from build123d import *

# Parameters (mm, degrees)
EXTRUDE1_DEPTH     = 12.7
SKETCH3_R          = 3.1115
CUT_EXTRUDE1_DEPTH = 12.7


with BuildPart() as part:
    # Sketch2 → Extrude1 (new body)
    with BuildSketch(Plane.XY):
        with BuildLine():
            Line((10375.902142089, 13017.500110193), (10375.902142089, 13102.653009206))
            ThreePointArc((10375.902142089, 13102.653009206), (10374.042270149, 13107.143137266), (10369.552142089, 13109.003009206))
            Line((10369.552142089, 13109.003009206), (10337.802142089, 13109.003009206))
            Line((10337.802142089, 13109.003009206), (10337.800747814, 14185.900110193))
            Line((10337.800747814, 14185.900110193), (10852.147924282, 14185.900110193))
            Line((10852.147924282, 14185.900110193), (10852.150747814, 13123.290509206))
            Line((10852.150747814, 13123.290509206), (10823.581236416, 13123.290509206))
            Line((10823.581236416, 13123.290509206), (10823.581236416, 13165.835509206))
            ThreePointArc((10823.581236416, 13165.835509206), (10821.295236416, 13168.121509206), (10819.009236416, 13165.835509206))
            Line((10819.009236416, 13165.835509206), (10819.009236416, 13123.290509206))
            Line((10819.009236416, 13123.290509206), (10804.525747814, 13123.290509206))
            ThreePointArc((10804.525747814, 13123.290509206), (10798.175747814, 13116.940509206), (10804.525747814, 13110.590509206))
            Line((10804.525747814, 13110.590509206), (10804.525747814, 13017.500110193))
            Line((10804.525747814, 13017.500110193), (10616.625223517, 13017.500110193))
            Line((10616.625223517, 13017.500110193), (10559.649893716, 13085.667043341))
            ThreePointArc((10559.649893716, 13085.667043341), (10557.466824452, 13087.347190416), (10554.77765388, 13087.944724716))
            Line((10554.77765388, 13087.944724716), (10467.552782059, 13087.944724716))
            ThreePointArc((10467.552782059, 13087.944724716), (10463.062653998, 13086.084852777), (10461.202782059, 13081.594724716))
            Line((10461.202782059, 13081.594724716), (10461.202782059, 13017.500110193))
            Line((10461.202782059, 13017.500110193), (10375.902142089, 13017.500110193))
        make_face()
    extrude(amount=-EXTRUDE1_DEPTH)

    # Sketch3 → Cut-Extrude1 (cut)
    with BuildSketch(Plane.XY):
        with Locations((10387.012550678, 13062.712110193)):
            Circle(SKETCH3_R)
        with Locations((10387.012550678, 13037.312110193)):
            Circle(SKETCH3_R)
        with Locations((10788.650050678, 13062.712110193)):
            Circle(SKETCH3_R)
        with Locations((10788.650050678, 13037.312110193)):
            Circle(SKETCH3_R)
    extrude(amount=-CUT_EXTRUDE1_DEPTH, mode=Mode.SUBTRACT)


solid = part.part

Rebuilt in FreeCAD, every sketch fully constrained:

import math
import FreeCAD as App
import Part
import Sketcher
Q = App.Units.Quantity

doc = App.newDocument("Part")
body = doc.addObject("PartDesign::Body", "Body")

# Sketch on XY plane
sketch1 = doc.addObject("Sketcher::SketchObject", "Sketch")
body.addObject(sketch1)
sketch1.AttachmentSupport = (doc.XY_Plane, [""])
sketch1.MapMode = "FlatFace"
sketch1.addGeometry(Part.LineSegment(App.Vector(10375.902142, 13102.653009, 0), App.Vector(10375.902142, 13017.50011, 0)), False)
sketch1.addGeometry(Part.LineSegment(App.Vector(10375.902142, 13017.50011, 0), App.Vector(10461.202782, 13017.50011, 0)), False)
sketch1.addGeometry(Part.LineSegment(App.Vector(10461.202782, 13017.50011, 0), App.Vector(10461.202782, 13081.594725, 0)), False)
sketch1.addGeometry(Part.ArcOfCircle(Part.Circle(App.Vector(10467.552782, 13081.594725, 0), App.Vector(0, 0, 1), 6.35), math.radians(90), math.radians(180)), False)
sketch1.addGeometry(Part.LineSegment(App.Vector(10467.552782, 13087.944725, 0), App.Vector(10554.777654, 13087.944725, 0)), False)
sketch1.addGeometry(Part.ArcOfCircle(Part.Circle(App.Vector(10554.777654, 13081.594725, 0), App.Vector(0, 0, 1), 6.35), math.radians(39.889574), math.radians(90)), False)
sketch1.addGeometry(Part.LineSegment(App.Vector(10559.649894, 13085.667043, 0), App.Vector(10616.625224, 13017.50011, 0)), False)
sketch1.addGeometry(Part.LineSegment(App.Vector(10616.625224, 13017.50011, 0), App.Vector(10804.525748, 13017.50011, 0)), False)
sketch1.addGeometry(Part.LineSegment(App.Vector(10804.525748, 13017.50011, 0), App.Vector(10804.525748, 13110.590509, 0)), False)
sketch1.addGeometry(Part.ArcOfCircle(Part.Circle(App.Vector(10804.525748, 13116.940509, 0), App.Vector(0, 0, 1), 6.35), math.radians(90), math.radians(270)), False)
sketch1.addGeometry(Part.LineSegment(App.Vector(10804.525748, 13123.290509, 0), App.Vector(10819.009236, 13123.290509, 0)), False)
sketch1.addGeometry(Part.LineSegment(App.Vector(10819.009236, 13123.290509, 0), App.Vector(10819.009236, 13165.835509, 0)), False)
sketch1.addGeometry(Part.ArcOfCircle(Part.Circle(App.Vector(10821.295236, 13165.835509, 0), App.Vector(0, 0, 1), 2.286), math.radians(0), math.radians(180)), False)
sketch1.addGeometry(Part.LineSegment(App.Vector(10823.581236, 13165.835509, 0), App.Vector(10823.581236, 13123.290509, 0)), False)
sketch1.addGeometry(Part.LineSegment(App.Vector(10823.581236, 13123.290509, 0), App.Vector(10852.150748, 13123.290509, 0)), False)
sketch1.addGeometry(Part.LineSegment(App.Vector(10852.150748, 13123.290509, 0), App.Vector(10852.147924, 14185.90011, 0)), False)
sketch1.addGeometry(Part.LineSegment(App.Vector(10852.147924, 14185.90011, 0), App.Vector(10337.800748, 14185.90011, 0)), False)
sketch1.addGeometry(Part.LineSegment(App.Vector(10337.800748, 14185.90011, 0), App.Vector(10337.802142, 13109.003009, 0)), False)
sketch1.addGeometry(Part.LineSegment(App.Vector(10337.802142, 13109.003009, 0), App.Vector(10369.552142, 13109.003009, 0)), False)
sketch1.addGeometry(Part.ArcOfCircle(Part.Circle(App.Vector(10369.552142, 13102.653009, 0), App.Vector(0, 0, 1), 6.35), math.radians(0), math.radians(90)), False)
sketch1.addConstraint(Sketcher.Constraint("Coincident", 0, 2, 1, 1))
sketch1.addConstraint(Sketcher.Constraint("Coincident", 1, 2, 2, 1))
sketch1.addConstraint(Sketcher.Constraint("Coincident", 2, 2, 3, 2))
sketch1.addConstraint(Sketcher.Constraint("Coincident", 3, 1, 4, 1))
sketch1.addConstraint(Sketcher.Constraint("Coincident", 4, 2, 5, 2))
sketch1.addConstraint(Sketcher.Constraint("Coincident", 5, 1, 6, 1))
sketch1.addConstraint(Sketcher.Constraint("Coincident", 6, 2, 7, 1))
sketch1.addConstraint(Sketcher.Constraint("Coincident", 7, 2, 8, 1))
sketch1.addConstraint(Sketcher.Constraint("Coincident", 8, 2, 9, 2))
sketch1.addConstraint(Sketcher.Constraint("Coincident", 9, 1, 10, 1))
sketch1.addConstraint(Sketcher.Constraint("Coincident", 10, 2, 11, 1))
sketch1.addConstraint(Sketcher.Constraint("Coincident", 11, 2, 12, 2))
sketch1.addConstraint(Sketcher.Constraint("Coincident", 12, 1, 13, 1))
sketch1.addConstraint(Sketcher.Constraint("Coincident", 13, 2, 14, 1))
sketch1.addConstraint(Sketcher.Constraint("Coincident", 14, 2, 15, 1))
sketch1.addConstraint(Sketcher.Constraint("Coincident", 15, 2, 16, 1))
sketch1.addConstraint(Sketcher.Constraint("Coincident", 16, 2, 17, 1))
sketch1.addConstraint(Sketcher.Constraint("Coincident", 17, 2, 18, 1))
sketch1.addConstraint(Sketcher.Constraint("Coincident", 18, 2, 19, 2))
sketch1.addConstraint(Sketcher.Constraint("Coincident", 19, 1, 0, 1))
sketch1.addConstraint(Sketcher.Constraint("Vertical", 0))
sketch1.addConstraint(Sketcher.Constraint("Horizontal", 1))
sketch1.addConstraint(Sketcher.Constraint("Vertical", 2))
sketch1.addConstraint(Sketcher.Constraint("Horizontal", 4))
sketch1.addConstraint(Sketcher.Constraint("Horizontal", 7))
sketch1.addConstraint(Sketcher.Constraint("Vertical", 8))
sketch1.addConstraint(Sketcher.Constraint("Horizontal", 10))
sketch1.addConstraint(Sketcher.Constraint("Vertical", 11))
sketch1.addConstraint(Sketcher.Constraint("Vertical", 13))
sketch1.addConstraint(Sketcher.Constraint("Horizontal", 14))
sketch1.addConstraint(Sketcher.Constraint("Horizontal", 16))
sketch1.addConstraint(Sketcher.Constraint("Horizontal", 18))
sketch1.addConstraint(Sketcher.Constraint("Radius", 3, Q("0.25 in")))
sketch1.addConstraint(Sketcher.Constraint("Radius", 5, Q("0.25 in")))
sketch1.addConstraint(Sketcher.Constraint("Radius", 9, Q("0.25 in")))
sketch1.addConstraint(Sketcher.Constraint("Radius", 12, Q("0.09 in")))
sketch1.addConstraint(Sketcher.Constraint("Radius", 19, Q("0.25 in")))
sketch1.addConstraint(Sketcher.Constraint("DistanceX", 18, 1, 18, 2, Q("1.25 in")))
sketch1.addConstraint(Sketcher.Constraint("DistanceY", 8, 2, 13, 2, Q("0.5 in")))
sketch1.addConstraint(Sketcher.Constraint("DistanceX", 17, 2, 0, 2, Q("1.5 in")))
sketch1.addConstraint(Sketcher.Constraint("DistanceY", 11, 1, 11, 2, Q("1.675 in")))
sketch1.addConstraint(Sketcher.Constraint("DistanceY", 13, 2, 13, 1, Q("1.675 in")))
sketch1.addConstraint(Sketcher.Constraint("DistanceX", 2, 2, 3, 1, Q("0.25 in")))
sketch1.addConstraint(Sketcher.Constraint("DistanceY", 2, 2, 3, 1, Q("0.25 in")))
sketch1.addConstraint(Sketcher.Constraint("DistanceY", 19, 1, 18, 2, Q("0.25 in")))
sketch1.addConstraint(Sketcher.Constraint("DistanceY", 9, 3, 12, 3, Q("1.925 in")))
sketch1.addConstraint(Sketcher.Constraint("DistanceY", 19, 3, 9, 3, Q("0.5625 in")))
sketch1.addConstraint(Sketcher.Constraint("DistanceX", 9, 1, 14, 2, Q("1.875 in")))
sketch1.addConstraint(Sketcher.Constraint("DistanceX", 9, 3, 14, 2, Q("1.875 in")))
sketch1.addConstraint(Sketcher.Constraint("DistanceX", 8, 2, 14, 2, Q("1.875 in")))
sketch1.addConstraint(Sketcher.Constraint("DistanceY", 0, 2, 0, 1, 85.152899))
sketch1.addConstraint(Sketcher.Constraint("DistanceY", 8, 1, 8, 2, 93.090399))
sketch1.addConstraint(Sketcher.Constraint("Distance", 6, 88.842101))
sketch1.addConstraint(Sketcher.Constraint("Distance", 15, 1062.609601))
sketch1.addConstraint(Sketcher.Constraint("DistanceX", 1, 1, 1, 2, 85.30064))
sketch1.addConstraint(Sketcher.Constraint("DistanceX", 4, 1, 4, 2, 87.224872))
sketch1.addConstraint(Sketcher.Constraint("DistanceX", 10, 1, 10, 2, 14.483489))
sketch1.addConstraint(Sketcher.Constraint("DistanceX", 7, 1, 7, 2, 187.900524))
sketch1.addConstraint(Sketcher.Constraint("DistanceX", 16, 2, 16, 1, 514.347176))
sketch1.addConstraint(Sketcher.Constraint("DistanceY", 2, 1, 2, 2, 64.094615))
sketch1.addConstraint(Sketcher.Constraint("DistanceY", -1, 1, 9, 3, 13116.940509))
sketch1.addConstraint(Sketcher.Constraint("DistanceX", 3, 3, 5, 3, 87.224872))
sketch1.addConstraint(Sketcher.Constraint("DistanceX", 4, 2, 5, 1, 4.87224))
sketch1.addConstraint(Sketcher.Constraint("DistanceX", -1, 1, 3, 3, 10467.552782))
sketch1.addConstraint(Sketcher.Constraint("DistanceX", -1, 1, 15, 2, 10852.147924))
pad1 = doc.addObject("PartDesign::Pad", "Pad")
body.addObject(pad1)
pad1.Profile = sketch1
pad1.Length = Q("0.5 in")
pad1.Reversed = True

# Sketch on XY plane
sketch2 = doc.addObject("Sketcher::SketchObject", "Sketch001")
body.addObject(sketch2)
sketch2.AttachmentSupport = (doc.XY_Plane, [""])
sketch2.MapMode = "FlatFace"
sketch2.addGeometry(Part.Circle(App.Vector(10387.012551, 13062.71211, 0), App.Vector(0, 0, 1), 3.1115), False)
sketch2.addGeometry(Part.Circle(App.Vector(10387.012551, 13037.31211, 0), App.Vector(0, 0, 1), 3.1115), False)
sketch2.addGeometry(Part.Circle(App.Vector(10788.650051, 13062.71211, 0), App.Vector(0, 0, 1), 3.1115), False)
sketch2.addGeometry(Part.Circle(App.Vector(10788.650051, 13037.31211, 0), App.Vector(0, 0, 1), 3.1115), False)
sketch2.addConstraint(Sketcher.Constraint("Equal", 0, 1))
sketch2.addConstraint(Sketcher.Constraint("Equal", 1, 2))
sketch2.addConstraint(Sketcher.Constraint("Equal", 2, 3))
sketch2.addConstraint(Sketcher.Constraint("Horizontal", 0, 3, 2, 3))
sketch2.addConstraint(Sketcher.Constraint("Horizontal", 1, 3, 3, 3))
sketch2.addConstraint(Sketcher.Constraint("Vertical", 0, 3, 1, 3))
sketch2.addConstraint(Sketcher.Constraint("Vertical", 2, 3, 3, 3))
sketch2.addConstraint(Sketcher.Constraint("Diameter", 0, Q("0.245 in")))
sketch2.addConstraint(Sketcher.Constraint("DistanceY", 1, 3, 0, 3, Q("1 in")))
sketch2.addConstraint(Sketcher.Constraint("DistanceX", 0, 3, 2, 3, Q("15.8125 in")))
sketch2.addConstraint(Sketcher.Constraint("DistanceX", -1, 1, 0, 3, 10387.012551))
sketch2.addConstraint(Sketcher.Constraint("DistanceY", -1, 1, 0, 3, 13062.71211))
pocket1 = doc.addObject("PartDesign::Pocket", "Pocket")
body.addObject(pocket1)
pocket1.Profile = sketch2
pocket1.Length = Q("0.5 in")

doc.recompute()
